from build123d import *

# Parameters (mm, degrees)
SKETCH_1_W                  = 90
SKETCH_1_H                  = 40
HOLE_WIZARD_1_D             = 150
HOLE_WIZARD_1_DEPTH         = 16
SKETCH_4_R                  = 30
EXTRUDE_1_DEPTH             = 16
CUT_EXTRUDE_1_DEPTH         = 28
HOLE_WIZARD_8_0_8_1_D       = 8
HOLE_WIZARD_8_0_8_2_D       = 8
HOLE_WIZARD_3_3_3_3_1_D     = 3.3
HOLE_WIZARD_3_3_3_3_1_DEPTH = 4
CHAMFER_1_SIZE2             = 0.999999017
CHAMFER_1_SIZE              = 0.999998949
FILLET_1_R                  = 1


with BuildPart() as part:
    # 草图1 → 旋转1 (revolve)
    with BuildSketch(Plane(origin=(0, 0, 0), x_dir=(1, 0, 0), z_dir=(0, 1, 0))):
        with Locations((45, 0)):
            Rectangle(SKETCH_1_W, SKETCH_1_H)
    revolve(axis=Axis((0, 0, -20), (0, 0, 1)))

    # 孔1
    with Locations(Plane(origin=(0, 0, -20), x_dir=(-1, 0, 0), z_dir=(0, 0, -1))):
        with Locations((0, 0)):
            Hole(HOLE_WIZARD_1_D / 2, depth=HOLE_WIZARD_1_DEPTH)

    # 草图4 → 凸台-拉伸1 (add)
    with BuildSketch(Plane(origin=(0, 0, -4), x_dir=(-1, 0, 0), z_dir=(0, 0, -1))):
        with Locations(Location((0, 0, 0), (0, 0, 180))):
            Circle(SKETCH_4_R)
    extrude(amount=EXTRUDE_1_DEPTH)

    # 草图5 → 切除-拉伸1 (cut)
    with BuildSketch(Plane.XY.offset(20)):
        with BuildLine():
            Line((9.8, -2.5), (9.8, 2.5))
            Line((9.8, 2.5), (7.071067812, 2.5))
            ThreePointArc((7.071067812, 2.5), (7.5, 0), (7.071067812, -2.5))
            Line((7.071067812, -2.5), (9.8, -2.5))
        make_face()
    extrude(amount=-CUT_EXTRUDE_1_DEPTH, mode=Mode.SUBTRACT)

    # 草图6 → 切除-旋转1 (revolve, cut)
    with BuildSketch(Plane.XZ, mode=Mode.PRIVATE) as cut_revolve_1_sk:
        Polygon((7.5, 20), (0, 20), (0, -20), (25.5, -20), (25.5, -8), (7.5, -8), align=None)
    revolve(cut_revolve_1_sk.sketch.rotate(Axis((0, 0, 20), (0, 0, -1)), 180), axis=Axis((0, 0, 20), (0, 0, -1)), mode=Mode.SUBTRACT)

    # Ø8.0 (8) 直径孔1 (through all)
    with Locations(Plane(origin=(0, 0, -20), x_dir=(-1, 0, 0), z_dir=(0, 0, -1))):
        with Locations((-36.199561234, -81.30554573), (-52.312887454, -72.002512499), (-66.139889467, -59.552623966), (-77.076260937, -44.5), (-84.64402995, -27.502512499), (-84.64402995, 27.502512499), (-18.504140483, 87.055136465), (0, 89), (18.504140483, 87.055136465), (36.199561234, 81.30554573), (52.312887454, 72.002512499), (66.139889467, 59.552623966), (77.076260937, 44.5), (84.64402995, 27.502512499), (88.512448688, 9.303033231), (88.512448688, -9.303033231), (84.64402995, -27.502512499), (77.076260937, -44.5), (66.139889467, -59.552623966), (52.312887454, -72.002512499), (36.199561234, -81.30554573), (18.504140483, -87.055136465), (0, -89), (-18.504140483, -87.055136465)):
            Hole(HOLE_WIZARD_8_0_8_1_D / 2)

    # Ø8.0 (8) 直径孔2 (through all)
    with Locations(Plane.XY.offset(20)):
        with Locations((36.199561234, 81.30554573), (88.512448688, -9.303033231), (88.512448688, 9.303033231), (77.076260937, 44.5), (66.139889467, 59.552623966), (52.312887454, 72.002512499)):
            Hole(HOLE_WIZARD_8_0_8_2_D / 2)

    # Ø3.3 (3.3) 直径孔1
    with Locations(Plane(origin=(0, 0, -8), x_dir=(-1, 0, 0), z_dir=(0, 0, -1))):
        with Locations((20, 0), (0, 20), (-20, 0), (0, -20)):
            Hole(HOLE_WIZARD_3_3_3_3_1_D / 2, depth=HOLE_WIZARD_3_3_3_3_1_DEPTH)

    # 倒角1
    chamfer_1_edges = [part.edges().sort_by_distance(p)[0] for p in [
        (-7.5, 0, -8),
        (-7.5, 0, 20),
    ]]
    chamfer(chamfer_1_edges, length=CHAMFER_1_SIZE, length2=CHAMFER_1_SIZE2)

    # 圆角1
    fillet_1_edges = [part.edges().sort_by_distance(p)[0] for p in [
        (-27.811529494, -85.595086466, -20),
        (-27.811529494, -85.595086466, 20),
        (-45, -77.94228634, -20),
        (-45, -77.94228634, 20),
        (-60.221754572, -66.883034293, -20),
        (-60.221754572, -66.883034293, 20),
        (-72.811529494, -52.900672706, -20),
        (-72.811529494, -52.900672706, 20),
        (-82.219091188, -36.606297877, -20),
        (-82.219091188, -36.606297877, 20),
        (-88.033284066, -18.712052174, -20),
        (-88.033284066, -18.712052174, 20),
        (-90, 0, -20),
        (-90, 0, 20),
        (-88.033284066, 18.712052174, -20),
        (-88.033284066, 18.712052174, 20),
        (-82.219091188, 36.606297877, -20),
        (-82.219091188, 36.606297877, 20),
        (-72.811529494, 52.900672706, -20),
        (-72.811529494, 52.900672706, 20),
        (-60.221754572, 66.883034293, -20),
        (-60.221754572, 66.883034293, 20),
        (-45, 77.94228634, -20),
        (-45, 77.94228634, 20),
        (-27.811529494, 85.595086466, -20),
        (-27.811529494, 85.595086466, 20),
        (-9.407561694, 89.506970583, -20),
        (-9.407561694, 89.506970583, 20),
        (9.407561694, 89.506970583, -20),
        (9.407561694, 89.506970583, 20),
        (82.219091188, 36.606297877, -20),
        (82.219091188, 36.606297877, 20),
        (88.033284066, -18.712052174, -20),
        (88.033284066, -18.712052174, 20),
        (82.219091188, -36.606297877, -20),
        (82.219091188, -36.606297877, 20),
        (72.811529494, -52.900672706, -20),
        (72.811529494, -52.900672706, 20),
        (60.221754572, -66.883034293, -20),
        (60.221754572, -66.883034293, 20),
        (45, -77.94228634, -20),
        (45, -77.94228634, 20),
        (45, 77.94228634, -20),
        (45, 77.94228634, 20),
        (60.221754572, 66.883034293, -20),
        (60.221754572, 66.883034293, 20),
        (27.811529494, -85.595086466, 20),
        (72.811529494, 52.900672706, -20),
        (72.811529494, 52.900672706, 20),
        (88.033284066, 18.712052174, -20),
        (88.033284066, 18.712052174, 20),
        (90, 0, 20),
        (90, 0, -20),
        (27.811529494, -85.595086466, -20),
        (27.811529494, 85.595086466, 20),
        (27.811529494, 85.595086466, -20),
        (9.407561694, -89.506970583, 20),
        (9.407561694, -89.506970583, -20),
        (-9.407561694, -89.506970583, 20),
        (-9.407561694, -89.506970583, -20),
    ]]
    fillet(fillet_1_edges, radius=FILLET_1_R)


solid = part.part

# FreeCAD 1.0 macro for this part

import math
import FreeCAD as App
import Part
import Sketcher

V = App.Vector


def edges_at(feature, points):
    """Names of the edges that pass closest to the given points."""
    edges = feature.Shape.Edges
    near = lambda p: min(range(len(edges)), key=lambda i: edges[i].distToShape(Part.Vertex(*p))[0])
    return sorted({f"Edge{near(p) + 1}" for p in points})


def add_polygon(sketch, points):
    """Adds a closed chain of lines whose ends are joined by coincident constraints."""
    first, n = sketch.GeometryCount, len(points)
    for a, b in zip(points, points[1:] + points[:1]):
        sketch.addGeometry(Part.LineSegment(App.Vector(*a, 0), App.Vector(*b, 0)), False)
    for i in range(n):
        sketch.addConstraint(Sketcher.Constraint("Coincident", first + i, 2, first + (i + 1) % n, 1))

doc = App.newDocument("Part")
body = doc.addObject("PartDesign::Body", "Body")

sketch1 = body.newObject("Sketcher::SketchObject", "Sketch")
sketch1.AttachmentSupport = (doc.getObject("XZ_Plane"), [""])
sketch1.MapMode = "FlatFace"
add_polygon(sketch1, [(0, -20), (0, 20), (90, 20), (90, -20)])
sketch1.addConstraint([
    Sketcher.Constraint("Vertical", 0),
    Sketcher.Constraint("Horizontal", 1),
    Sketcher.Constraint("Vertical", 2),
    Sketcher.Constraint("Horizontal", 3),
    Sketcher.Constraint("Symmetric", 0, 2, 3, 2, -1, 1),
    Sketcher.Constraint("DistanceX", 1, 1, 1, 2, 90.0),
    Sketcher.Constraint("DistanceY", 0, 1, 0, 2, 40.0),
])
revolution = body.newObject("PartDesign::Revolution", "Revolution")
revolution.Profile = sketch1
revolution.ReferenceAxis = (sketch1, ["V_Axis"])
revolution.Angle = 360

sketch2 = body.newObject("Sketcher::SketchObject", "Sketch001")
sketch2.AttachmentSupport = (doc.getObject("XY_Plane"), [""])
sketch2.MapMode = "FlatFace"
sketch2.AttachmentOffset = App.Placement(V(0, 0, -20), App.Rotation())
sketch2.addGeometry(Part.Circle(V(0, 0, 0), V(0, 0, 1), 75), False)
sketch2.addConstraint([
    Sketcher.Constraint("Coincident", 0, 3, -1, 1),
    Sketcher.Constraint("Diameter", 0, 150.0),
])
doc.recompute()
hole = body.newObject("PartDesign::Hole", "Hole")
hole.Profile = sketch2
hole.ThreadType = "None"
hole.Diameter = 150
hole.DepthType = "Dimension"
hole.Depth = 16
hole.DrillPoint = "Flat"
hole.Reversed = True

sketch3 = body.newObject("Sketcher::SketchObject", "Sketch002")
sketch3.AttachmentSupport = (doc.getObject("XY_Plane"), [""])
sketch3.MapMode = "FlatFace"
sketch3.AttachmentOffset = App.Placement(V(0, 0, -4), App.Rotation())
sketch3.addGeometry(Part.Circle(V(0, 0, 0), V(0, 0, 1), 30), False)
sketch3.addConstraint([
    Sketcher.Constraint("Coincident", 0, 3, -1, 1),
    Sketcher.Constraint("Diameter", 0, 60.0),
])
pad1 = body.newObject("PartDesign::Pad", "Pad")
pad1.Profile = sketch3
pad1.Length = 16
pad1.Reversed = True

sketch4 = body.newObject("Sketcher::SketchObject", "Sketch003")
sketch4.AttachmentSupport = (doc.getObject("XY_Plane"), [""])
sketch4.MapMode = "FlatFace"
sketch4.AttachmentOffset = App.Placement(V(0, 0, 20), App.Rotation())
sketch4.addGeometry([
    Part.LineSegment(V(9.8, -2.5, 0), V(9.8, 2.5, 0)),
    Part.LineSegment(V(9.8, 2.5, 0), V(7.1, 2.5, 0)),
    Part.ArcOfCircle(Part.Circle(V(0, 0, 0), V(0, 0, 1), 7.5), math.radians(-19), math.radians(19)),
    Part.LineSegment(V(7.1, -2.5, 0), V(9.8, -2.5, 0)),
], False)
sketch4.addConstraint([
    Sketcher.Constraint("Coincident", 0, 2, 1, 1),
    Sketcher.Constraint("Coincident", 1, 2, 2, 2),
    Sketcher.Constraint("Coincident", 2, 1, 3, 1),
    Sketcher.Constraint("Coincident", 3, 2, 0, 1),
    Sketcher.Constraint("Vertical", 0),
    Sketcher.Constraint("Horizontal", 1),
    Sketcher.Constraint("Horizontal", 3),
    Sketcher.Constraint("Coincident", 2, 3, -1, 1),
    Sketcher.Constraint("Vertical", 1, 2, 2, 1),
    Sketcher.Constraint("Radius", 2, 7.5),
    Sketcher.Constraint("DistanceY", 0, 1, 0, 2, 5.0),
    Sketcher.Constraint("DistanceX", -1, 1, 0, 2, 9.8),
])
pocket1 = body.newObject("PartDesign::Pocket", "Pocket")
pocket1.Profile = sketch4
pocket1.Length = 28

sketch5 = body.newObject("Sketcher::SketchObject", "Sketch004")
sketch5.AttachmentSupport = (doc.getObject("XZ_Plane"), [""])
sketch5.MapMode = "FlatFace"
add_polygon(sketch5, [(8, 20), (0, 20), (0, -20), (26, -20), (26, -8), (8, -8)])
sketch5.addConstraint([
    Sketcher.Constraint("Horizontal", 0),
    Sketcher.Constraint("Vertical", 1),
    Sketcher.Constraint("Horizontal", 2),
    Sketcher.Constraint("Vertical", 3),
    Sketcher.Constraint("Horizontal", 4),
    Sketcher.Constraint("Vertical", 5),
    Sketcher.Constraint("Symmetric", 0, 2, 1, 2, -1, 1),
    Sketcher.Constraint("DistanceX", 4, 2, 4, 1, 18.0),
    Sketcher.Constraint("DistanceY", 1, 2, 1, 1, 40.0),
    Sketcher.Constraint("DistanceY", 3, 1, 3, 2, 12.0),
    Sketcher.Constraint("DistanceX", 0, 2, 0, 1, 7.5),
])
groove = body.newObject("PartDesign::Groove", "Groove")
groove.Profile = sketch5
groove.ReferenceAxis = (sketch5, ["V_Axis"])
groove.Angle = 360

sketch6 = body.newObject("Sketcher::SketchObject", "Sketch005")
sketch6.AttachmentSupport = (doc.getObject("XY_Plane"), [""])
sketch6.MapMode = "FlatFace"
sketch6.AttachmentOffset = App.Placement(V(0, 0, -20), App.Rotation())
sketch6.addGeometry([
    Part.Circle(V(36.2, -81.3, 0), V(0, 0, 1), 4),
    Part.Circle(V(52.3, -72, 0), V(0, 0, 1), 4),
    Part.Circle(V(66.1, -59.6, 0), V(0, 0, 1), 4),
    Part.Circle(V(77.1, -44.5, 0), V(0, 0, 1), 4),
    Part.Circle(V(84.6, -27.5, 0), V(0, 0, 1), 4),
    Part.Circle(V(84.6, 27.5, 0), V(0, 0, 1), 4),
    Part.Circle(V(18.5, 87.1, 0), V(0, 0, 1), 4),
    Part.Circle(V(0, 89, 0), V(0, 0, 1), 4),
    Part.Circle(V(-18.5, 87.1, 0), V(0, 0, 1), 4),
    Part.Circle(V(-36.2, 81.3, 0), V(0, 0, 1), 4),
    Part.Circle(V(-52.3, 72, 0), V(0, 0, 1), 4),
    Part.Circle(V(-66.1, 59.6, 0), V(0, 0, 1), 4),
    Part.Circle(V(-77.1, 44.5, 0), V(0, 0, 1), 4),
    Part.Circle(V(-84.6, 27.5, 0), V(0, 0, 1), 4),
    Part.Circle(V(-88.5, 9.3, 0), V(0, 0, 1), 4),
    Part.Circle(V(-88.5, -9.3, 0), V(0, 0, 1), 4),
    Part.Circle(V(-84.6, -27.5, 0), V(0, 0, 1), 4),
    Part.Circle(V(-77.1, -44.5, 0), V(0, 0, 1), 4),
    Part.Circle(V(-66.1, -59.6, 0), V(0, 0, 1), 4),
    Part.Circle(V(-52.3, -72, 0), V(0, 0, 1), 4),
    Part.Circle(V(-36.2, -81.3, 0), V(0, 0, 1), 4),
    Part.Circle(V(-18.5, -87.1, 0), V(0, 0, 1), 4),
    Part.Circle(V(0, -89, 0), V(0, 0, 1), 4),
    Part.Circle(V(18.5, -87.1, 0), V(0, 0, 1), 4),
], False)
sketch6.addConstraint([
    Sketcher.Constraint("Equal", 0, 1),
    Sketcher.Constraint("Equal", 1, 2),
    Sketcher.Constraint("Equal", 2, 3),
    Sketcher.Constraint("Equal", 3, 4),
    Sketcher.Constraint("Equal", 4, 5),
    Sketcher.Constraint("Equal", 5, 6),
    Sketcher.Constraint("Equal", 6, 7),
    Sketcher.Constraint("Equal", 7, 8),
    Sketcher.Constraint("Equal", 8, 9),
    Sketcher.Constraint("Equal", 9, 10),
    Sketcher.Constraint("Equal", 10, 11),
    Sketcher.Constraint("Equal", 11, 12),
    Sketcher.Constraint("Equal", 12, 13),
    Sketcher.Constraint("Equal", 13, 14),
    Sketcher.Constraint("Equal", 14, 15),
    Sketcher.Constraint("Equal", 15, 16),
    Sketcher.Constraint("Equal", 16, 17),
    Sketcher.Constraint("Equal", 17, 18),
    Sketcher.Constraint("Equal", 18, 19),
    Sketcher.Constraint("Equal", 19, 20),
    Sketcher.Constraint("Equal", 20, 21),
    Sketcher.Constraint("Equal", 21, 22),
    Sketcher.Constraint("Equal", 22, 23),
    Sketcher.Constraint("Symmetric", 0, 3, 9, 3, -1, 1),
    Sketcher.Constraint("Symmetric", 1, 3, 10, 3, -1, 1),
    Sketcher.Constraint("Symmetric", 2, 3, 11, 3, -1, 1),
    Sketcher.Constraint("Symmetric", 3, 3, 12, 3, -1, 1),
    Sketcher.Constraint("Symmetric", 4, 3, 13, 3, -1, 1),
    Sketcher.Constraint("Symmetric", 5, 3, 16, 3, -1, 1),
    Sketcher.Constraint("Symmetric", 6, 3, 21, 3, -1, 1),
    Sketcher.Constraint("Symmetric", 7, 3, 22, 3, -1, 1),
    Sketcher.Constraint("Symmetric", 8, 3, 23, 3, -1, 1),
    Sketcher.Constraint("Symmetric", 6, 3, 8, 3, -2),
    Sketcher.Constraint("Symmetric", 5, 3, 13, 3, -2),
    Sketcher.Constraint("Symmetric", 3, 3, 17, 3, -2),
    Sketcher.Constraint("Symmetric", 2, 3, 18, 3, -2),
    Sketcher.Constraint("Symmetric", 1, 3, 19, 3, -2),
    Sketcher.Constraint("Symmetric", 0, 3, 20, 3, -2),
    Sketcher.Constraint("Symmetric", 14, 3, 15, 3, -1),
    Sketcher.Constraint("PointOnObject", 7, 3, -2),
    Sketcher.Constraint("Diameter", 0, 8.0),
    Sketcher.Constraint("DistanceY", -1, 1, 7, 3, 89.0),
    Sketcher.Constraint("DistanceY", 17, 3, 12, 3, 89.0),
    Sketcher.Constraint("DistanceY", 1, 3, 4, 3, 44.5),
    Sketcher.Constraint("DistanceX", 0, 3, 3, 3, 40.8767),
    Sketcher.Constraint("DistanceX", 8, 3, 3, 3, 95.580401),
    Sketcher.Constraint("DistanceX", -1, 1, 0, 3, 36.199561),
    Sketcher.Constraint("DistanceX", -1, 1, 2, 3, 66.139889),
    Sketcher.Constraint("DistanceX", -1, 1, 4, 3, 84.64403),
    Sketcher.Constraint("DistanceX", 14, 3, -1, 1, 88.512449),
    Sketcher.Constraint("DistanceY", 1, 3, 2, 3, 12.449889),
    Sketcher.Constraint("DistanceY", 0, 3, 2, 3, 21.752922),
    Sketcher.Constraint("DistanceY", 0, 3, 5, 3, 108.808058),
    Sketcher.Constraint("DistanceY", 4, 3, 6, 3, 114.557649),
    Sketcher.Constraint("DistanceY", 14, 3, 13, 3, 18.199479),
    Sketcher.Constraint("DistanceX", 14, 3, 10, 3, 36.199561),
])
doc.recompute()
hole2 = body.newObject("PartDesign::Hole", "Hole001")
hole2.Profile = sketch6
hole2.ThreadType = "None"
hole2.Diameter = 8
hole2.DepthType = "ThroughAll"
hole2.Reversed = True

sketch7 = body.newObject("Sketcher::SketchObject", "Sketch006")
sketch7.AttachmentSupport = (doc.getObject("XY_Plane"), [""])
sketch7.MapMode = "FlatFace"
sketch7.AttachmentOffset = App.Placement(V(0, 0, 20), App.Rotation())
sketch7.addGeometry([
    Part.Circle(V(36.2, 81.3, 0), V(0, 0, 1), 4),
    Part.Circle(V(88.5, -9.3, 0), V(0, 0, 1), 4),
    Part.Circle(V(88.5, 9.3, 0), V(0, 0, 1), 4),
    Part.Circle(V(77.1, 44.5, 0), V(0, 0, 1), 4),
    Part.Circle(V(66.1, 59.6, 0), V(0, 0, 1), 4),
    Part.Circle(V(52.3, 72, 0), V(0, 0, 1), 4),
], False)
sketch7.addConstraint([
    Sketcher.Constraint("Equal", 0, 1),
    Sketcher.Constraint("Equal", 1, 2),
    Sketcher.Constraint("Equal", 2, 3),
    Sketcher.Constraint("Equal", 3, 4),
    Sketcher.Constraint("Equal", 4, 5),
    Sketcher.Constraint("Symmetric", 1, 3, 2, 3, -1),
    Sketcher.Constraint("Diameter", 0, 8.0),
    Sketcher.Constraint("DistanceY", -1, 1, 3, 3, 44.5),
    Sketcher.Constraint("DistanceX", 0, 3, 3, 3, 40.8767),
    Sketcher.Constraint("DistanceX", -1, 1, 0, 3, 36.199561),
    Sketcher.Constraint("DistanceX", -1, 1, 1, 3, 88.512449),
    Sketcher.Constraint("DistanceX", -1, 1, 4, 3, 66.139889),
    Sketcher.Constraint("DistanceY", 1, 3, 0, 3, 90.608579),
    Sketcher.Constraint("DistanceY", 4, 3, 0, 3, 21.752922),
    Sketcher.Constraint("DistanceY", 2, 3, 4, 3, 50.249591),
    Sketcher.Constraint("DistanceY", 4, 3, 5, 3, 12.449889),
    Sketcher.Constraint("DistanceX", 5, 3, 2, 3, 36.199561),
])
doc.recompute()
hole3 = body.newObject("PartDesign::Hole", "Hole002")
hole3.Profile = sketch7
hole3.ThreadType = "None"
hole3.Diameter = 8
hole3.DepthType = "ThroughAll"

sketch8 = body.newObject("Sketcher::SketchObject", "Sketch007")
sketch8.AttachmentSupport = (doc.getObject("XY_Plane"), [""])
sketch8.MapMode = "FlatFace"
sketch8.AttachmentOffset = App.Placement(V(0, 0, -8), App.Rotation())
sketch8.addGeometry([
    Part.Circle(V(-20, 0, 0), V(0, 0, 1), 1.6),
    Part.Circle(V(0, 20, 0), V(0, 0, 1), 1.6),
    Part.Circle(V(20, 0, 0), V(0, 0, 1), 1.6),
    Part.Circle(V(0, -20, 0), V(0, 0, 1), 1.6),
], False)
sketch8.addConstraint([
    Sketcher.Constraint("Equal", 0, 1),
    Sketcher.Constraint("Equal", 1, 2),
    Sketcher.Constraint("Equal", 2, 3),
    Sketcher.Constraint("Symmetric", 0, 3, 2, 3, -1, 1),
    Sketcher.Constraint("Symmetric", 1, 3, 3, 3, -1, 1),
    Sketcher.Constraint("PointOnObject", 0, 3, -1),
    Sketcher.Constraint("PointOnObject", 1, 3, -2),
    Sketcher.Constraint("Diameter", 0, 3.3),
    Sketcher.Constraint("DistanceX", 0, 3, -1, 1, 20.0),
    Sketcher.Constraint("DistanceY", -1, 1, 1, 3, 20.0),
])
doc.recompute()
hole4 = body.newObject("PartDesign::Hole", "Hole003")
hole4.Profile = sketch8
hole4.ThreadType = "None"
hole4.Diameter = 3.3
hole4.DepthType = "Dimension"
hole4.Depth = 4
hole4.DrillPoint = "Flat"
hole4.Reversed = True
doc.recompute()

chamfer = body.newObject("PartDesign::Chamfer", "Chamfer")
chamfer.Base = (hole4, edges_at(hole4, [(-7.5, 0, -8), (-7.5, 0, 20)]))
chamfer.ChamferType = "Two distances"
chamfer.Size = 0.999999
chamfer.Size2 = 0.999999
doc.recompute()

fillet = body.newObject("PartDesign::Fillet", "Fillet")
fillet.Base = (chamfer, edges_at(chamfer, [
    (-27.812, -85.595, -20),
    (-27.812, -85.595, 20),
    (-45, -77.942, -20),
    (-45, -77.942, 20),
    (-60.222, -66.883, -20),
    (-60.222, -66.883, 20),
    (-72.812, -52.901, -20),
    (-72.812, -52.901, 20),
    (-82.219, -36.606, -20),
    (-82.219, -36.606, 20),
    (-88.033, -18.712, -20),
    (-88.033, -18.712, 20),
    (-90, 0, -20),
    (-90, 0, 20),
    (-88.033, 18.712, -20),
    (-88.033, 18.712, 20),
    (-82.219, 36.606, -20),
    (-82.219, 36.606, 20),
    (-72.812, 52.901, -20),
    (-72.812, 52.901, 20),
    (-60.222, 66.883, -20),
    (-60.222, 66.883, 20),
    (-45, 77.942, -20),
    (-45, 77.942, 20),
    (-27.812, 85.595, -20),
    (-27.812, 85.595, 20),
    (-9.408, 89.507, -20),
    (-9.408, 89.507, 20),
    (9.408, 89.507, -20),
    (9.408, 89.507, 20),
    (82.219, 36.606, -20),
    (82.219, 36.606, 20),
    (88.033, -18.712, -20),
    (88.033, -18.712, 20),
    (82.219, -36.606, -20),
    (82.219, -36.606, 20),
    (72.812, -52.901, -20),
    (72.812, -52.901, 20),
    (60.222, -66.883, -20),
    (60.222, -66.883, 20),
    (45, -77.942, -20),
    (45, -77.942, 20),
    (45, 77.942, -20),
    (45, 77.942, 20),
    (60.222, 66.883, -20),
    (60.222, 66.883, 20),
    (27.812, -85.595, 20),
    (72.812, 52.901, -20),
    (72.812, 52.901, 20),
    (88.033, 18.712, -20),
    (88.033, 18.712, 20),
    (90, 0, 20),
    (90, 0, -20),
    (27.812, -85.595, -20),
    (27.812, 85.595, 20),
    (27.812, 85.595, -20),
    (9.408, -89.507, 20),
    (9.408, -89.507, -20),
    (-9.408, -89.507, 20),
    (-9.408, -89.507, -20),
]))
fillet.Radius = 1

doc.recompute()
